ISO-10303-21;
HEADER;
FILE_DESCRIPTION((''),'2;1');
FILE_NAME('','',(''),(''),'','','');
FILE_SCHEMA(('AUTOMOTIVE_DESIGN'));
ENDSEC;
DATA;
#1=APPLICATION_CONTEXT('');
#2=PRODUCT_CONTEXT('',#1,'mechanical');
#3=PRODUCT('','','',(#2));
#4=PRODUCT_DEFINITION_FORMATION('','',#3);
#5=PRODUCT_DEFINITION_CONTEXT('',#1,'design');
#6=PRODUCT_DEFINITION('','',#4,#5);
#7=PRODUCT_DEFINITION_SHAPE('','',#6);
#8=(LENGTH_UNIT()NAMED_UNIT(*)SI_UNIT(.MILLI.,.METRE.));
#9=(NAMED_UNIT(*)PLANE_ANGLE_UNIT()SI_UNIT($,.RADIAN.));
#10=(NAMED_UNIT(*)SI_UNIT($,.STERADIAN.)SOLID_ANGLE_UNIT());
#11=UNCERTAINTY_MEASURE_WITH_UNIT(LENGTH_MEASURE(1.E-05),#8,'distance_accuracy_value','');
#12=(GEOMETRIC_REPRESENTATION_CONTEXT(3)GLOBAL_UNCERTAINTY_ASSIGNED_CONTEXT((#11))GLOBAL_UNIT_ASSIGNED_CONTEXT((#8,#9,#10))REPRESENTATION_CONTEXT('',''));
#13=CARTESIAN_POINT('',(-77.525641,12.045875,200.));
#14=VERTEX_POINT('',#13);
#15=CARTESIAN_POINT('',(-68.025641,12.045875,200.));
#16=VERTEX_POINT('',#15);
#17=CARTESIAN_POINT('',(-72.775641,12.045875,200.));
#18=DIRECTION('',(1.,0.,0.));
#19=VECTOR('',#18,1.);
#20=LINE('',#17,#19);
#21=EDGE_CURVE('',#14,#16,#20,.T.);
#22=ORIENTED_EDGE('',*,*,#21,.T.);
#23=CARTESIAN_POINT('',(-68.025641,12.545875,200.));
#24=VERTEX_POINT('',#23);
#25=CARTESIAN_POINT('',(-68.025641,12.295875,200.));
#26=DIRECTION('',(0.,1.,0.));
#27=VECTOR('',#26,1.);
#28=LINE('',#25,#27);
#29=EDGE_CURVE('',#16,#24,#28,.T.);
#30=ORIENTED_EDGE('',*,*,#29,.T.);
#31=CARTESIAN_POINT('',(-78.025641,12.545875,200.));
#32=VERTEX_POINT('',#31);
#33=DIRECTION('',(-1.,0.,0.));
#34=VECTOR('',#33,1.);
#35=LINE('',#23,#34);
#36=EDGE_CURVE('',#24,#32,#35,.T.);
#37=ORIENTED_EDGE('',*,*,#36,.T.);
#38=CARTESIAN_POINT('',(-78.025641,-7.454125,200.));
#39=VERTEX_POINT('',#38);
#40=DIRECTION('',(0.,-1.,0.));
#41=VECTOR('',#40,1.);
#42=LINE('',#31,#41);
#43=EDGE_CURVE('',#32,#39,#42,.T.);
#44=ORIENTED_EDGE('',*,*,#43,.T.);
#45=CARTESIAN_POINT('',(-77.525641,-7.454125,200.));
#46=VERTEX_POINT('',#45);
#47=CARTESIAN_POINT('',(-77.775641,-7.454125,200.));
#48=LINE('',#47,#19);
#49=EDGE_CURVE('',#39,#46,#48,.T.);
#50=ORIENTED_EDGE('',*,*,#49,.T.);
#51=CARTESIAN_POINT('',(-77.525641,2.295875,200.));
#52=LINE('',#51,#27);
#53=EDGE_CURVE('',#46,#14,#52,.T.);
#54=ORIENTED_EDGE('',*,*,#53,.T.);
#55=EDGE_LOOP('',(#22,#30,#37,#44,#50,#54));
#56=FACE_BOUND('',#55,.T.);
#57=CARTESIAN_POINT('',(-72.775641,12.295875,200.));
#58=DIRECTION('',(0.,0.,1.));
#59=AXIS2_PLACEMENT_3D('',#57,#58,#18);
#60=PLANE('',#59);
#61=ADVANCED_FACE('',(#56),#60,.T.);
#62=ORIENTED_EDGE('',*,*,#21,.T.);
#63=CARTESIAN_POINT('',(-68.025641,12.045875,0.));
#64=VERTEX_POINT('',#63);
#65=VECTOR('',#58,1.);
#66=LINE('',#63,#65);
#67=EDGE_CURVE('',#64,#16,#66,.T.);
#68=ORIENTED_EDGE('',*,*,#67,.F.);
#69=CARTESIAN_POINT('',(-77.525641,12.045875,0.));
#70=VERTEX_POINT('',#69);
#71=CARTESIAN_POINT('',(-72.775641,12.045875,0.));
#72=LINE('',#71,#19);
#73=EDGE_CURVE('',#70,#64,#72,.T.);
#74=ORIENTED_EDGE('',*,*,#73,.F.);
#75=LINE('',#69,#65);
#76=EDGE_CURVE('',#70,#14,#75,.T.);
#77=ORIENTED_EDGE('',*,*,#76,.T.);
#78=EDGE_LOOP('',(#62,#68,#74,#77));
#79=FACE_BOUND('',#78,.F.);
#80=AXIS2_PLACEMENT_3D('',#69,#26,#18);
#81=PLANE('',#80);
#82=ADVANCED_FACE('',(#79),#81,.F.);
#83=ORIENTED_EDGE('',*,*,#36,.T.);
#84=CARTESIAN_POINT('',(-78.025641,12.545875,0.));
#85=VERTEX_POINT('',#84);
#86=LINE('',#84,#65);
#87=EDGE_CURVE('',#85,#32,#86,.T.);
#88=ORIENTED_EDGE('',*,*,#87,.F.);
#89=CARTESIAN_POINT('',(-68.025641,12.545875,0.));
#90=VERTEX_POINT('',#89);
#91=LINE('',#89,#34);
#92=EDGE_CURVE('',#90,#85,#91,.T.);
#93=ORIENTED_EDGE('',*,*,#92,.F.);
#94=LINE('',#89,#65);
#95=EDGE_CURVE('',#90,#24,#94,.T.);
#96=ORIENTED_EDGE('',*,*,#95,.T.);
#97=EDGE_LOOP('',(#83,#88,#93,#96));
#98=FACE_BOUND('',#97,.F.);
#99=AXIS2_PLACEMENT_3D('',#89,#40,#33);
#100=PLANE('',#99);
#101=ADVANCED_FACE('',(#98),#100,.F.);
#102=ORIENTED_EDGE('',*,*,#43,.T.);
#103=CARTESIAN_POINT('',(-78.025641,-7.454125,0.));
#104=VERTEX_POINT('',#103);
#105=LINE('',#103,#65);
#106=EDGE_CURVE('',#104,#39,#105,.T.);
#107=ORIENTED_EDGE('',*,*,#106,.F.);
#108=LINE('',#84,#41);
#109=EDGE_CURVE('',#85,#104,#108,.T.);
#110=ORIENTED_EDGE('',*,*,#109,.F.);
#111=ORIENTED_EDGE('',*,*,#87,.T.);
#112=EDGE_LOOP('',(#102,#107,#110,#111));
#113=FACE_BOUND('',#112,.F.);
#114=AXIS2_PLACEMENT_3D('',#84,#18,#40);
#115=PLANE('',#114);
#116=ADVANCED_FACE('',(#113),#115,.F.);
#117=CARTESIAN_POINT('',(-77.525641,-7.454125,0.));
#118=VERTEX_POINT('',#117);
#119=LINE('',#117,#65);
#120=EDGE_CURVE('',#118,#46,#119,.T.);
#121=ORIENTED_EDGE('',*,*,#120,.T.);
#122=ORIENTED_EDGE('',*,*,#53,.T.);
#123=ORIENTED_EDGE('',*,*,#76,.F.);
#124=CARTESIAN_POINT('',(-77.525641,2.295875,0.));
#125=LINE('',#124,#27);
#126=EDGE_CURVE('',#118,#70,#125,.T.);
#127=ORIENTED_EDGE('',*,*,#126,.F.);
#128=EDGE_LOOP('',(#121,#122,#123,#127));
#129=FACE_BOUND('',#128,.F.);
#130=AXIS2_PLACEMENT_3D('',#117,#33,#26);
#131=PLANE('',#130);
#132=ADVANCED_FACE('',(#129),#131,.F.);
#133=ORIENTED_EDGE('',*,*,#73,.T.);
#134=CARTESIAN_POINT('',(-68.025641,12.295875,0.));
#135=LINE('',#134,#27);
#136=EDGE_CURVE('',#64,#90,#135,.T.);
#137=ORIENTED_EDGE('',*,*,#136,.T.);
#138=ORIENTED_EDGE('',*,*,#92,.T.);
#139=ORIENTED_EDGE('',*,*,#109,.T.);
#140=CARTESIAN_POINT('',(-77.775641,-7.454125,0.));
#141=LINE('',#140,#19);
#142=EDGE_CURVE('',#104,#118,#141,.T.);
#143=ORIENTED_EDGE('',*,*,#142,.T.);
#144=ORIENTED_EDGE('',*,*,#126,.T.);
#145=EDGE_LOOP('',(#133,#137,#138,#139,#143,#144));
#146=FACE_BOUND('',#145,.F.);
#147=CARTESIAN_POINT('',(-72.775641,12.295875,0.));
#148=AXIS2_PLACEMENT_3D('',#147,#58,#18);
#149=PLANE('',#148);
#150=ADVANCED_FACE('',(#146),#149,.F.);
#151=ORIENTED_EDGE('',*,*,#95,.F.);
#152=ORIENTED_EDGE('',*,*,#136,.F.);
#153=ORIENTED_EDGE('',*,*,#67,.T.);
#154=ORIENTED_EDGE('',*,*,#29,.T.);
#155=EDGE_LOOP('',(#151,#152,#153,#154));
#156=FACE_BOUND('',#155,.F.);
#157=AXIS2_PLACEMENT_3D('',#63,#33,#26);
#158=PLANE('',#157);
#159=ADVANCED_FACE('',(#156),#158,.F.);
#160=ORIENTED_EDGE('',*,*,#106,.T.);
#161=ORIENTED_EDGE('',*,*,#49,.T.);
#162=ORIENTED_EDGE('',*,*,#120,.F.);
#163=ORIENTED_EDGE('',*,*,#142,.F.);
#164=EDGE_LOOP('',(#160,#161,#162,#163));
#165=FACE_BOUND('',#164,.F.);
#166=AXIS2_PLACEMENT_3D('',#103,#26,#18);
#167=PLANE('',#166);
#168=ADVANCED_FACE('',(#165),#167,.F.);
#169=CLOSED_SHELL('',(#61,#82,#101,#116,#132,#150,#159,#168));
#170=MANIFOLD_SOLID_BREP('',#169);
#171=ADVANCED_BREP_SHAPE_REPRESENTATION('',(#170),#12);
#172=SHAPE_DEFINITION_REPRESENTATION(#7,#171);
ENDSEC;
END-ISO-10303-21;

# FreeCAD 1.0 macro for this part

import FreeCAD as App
import Part
import Sketcher
Q = App.Units.Quantity

doc = App.newDocument("Part")
body = doc.addObject("PartDesign::Body", "Body")

sketch1 = doc.addObject("Sketcher::SketchObject", "Sketch")
body.addObject(sketch1)
sketch1.AttachmentSupport = (doc.XY_Plane, [""])
sketch1.MapMode = "FlatFace"
sketch1.addGeometry(Part.LineSegment(App.Vector(-77.525641, 12.045875, 0), App.Vector(-68.025641, 12.045875, 0)), False)
sketch1.addGeometry(Part.LineSegment(App.Vector(-68.025641, 12.045875, 0), App.Vector(-68.025641, 12.545875, 0)), False)
sketch1.addGeometry(Part.LineSegment(App.Vector(-68.025641, 12.545875, 0), App.Vector(-78.025641, 12.545875, 0)), False)
sketch1.addGeometry(Part.LineSegment(App.Vector(-78.025641, 12.545875, 0), App.Vector(-78.025641, -7.454125, 0)), False)
sketch1.addGeometry(Part.LineSegment(App.Vector(-78.025641, -7.454125, 0), App.Vector(-77.525641, -7.454125, 0)), False)
sketch1.addGeometry(Part.LineSegment(App.Vector(-77.525641, -7.454125, 0), App.Vector(-77.525641, 12.045875, 0)), False)
sketch1.addConstraint(Sketcher.Constraint("Coincident", 0, 2, 1, 1))
sketch1.addConstraint(Sketcher.Constraint("Coincident", 1, 2, 2, 1))
sketch1.addConstraint(Sketcher.Constraint("Coincident", 2, 2, 3, 1))
sketch1.addConstraint(Sketcher.Constraint("Coincident", 3, 2, 4, 1))
sketch1.addConstraint(Sketcher.Constraint("Coincident", 4, 2, 5, 1))
sketch1.addConstraint(Sketcher.Constraint("Coincident", 5, 2, 0, 1))
sketch1.addConstraint(Sketcher.Constraint("Horizontal", 0))
sketch1.addConstraint(Sketcher.Constraint("Vertical", 1))
sketch1.addConstraint(Sketcher.Constraint("Horizontal", 2))
sketch1.addConstraint(Sketcher.Constraint("Vertical", 3))
sketch1.addConstraint(Sketcher.Constraint("Horizontal", 4))
sketch1.addConstraint(Sketcher.Constraint("Vertical", 5))
sketch1.addConstraint(Sketcher.Constraint("Equal", 4, 1))
sketch1.addConstraint(Sketcher.Constraint("DistanceX", 2, 2, 2, 1, Q("10 mm")))
sketch1.addConstraint(Sketcher.Constraint("DistanceY", 3, 2, 3, 1, Q("20 mm")))
sketch1.addConstraint(Sketcher.Constraint("DistanceX", 0, 1, 0, 2, Q("9.5 mm")))
sketch1.addConstraint(Sketcher.Constraint("DistanceX", 0, 2, -1, 1, Q("68.025641 mm")))
sketch1.addConstraint(Sketcher.Constraint("DistanceY", -1, 1, 0, 2, Q("12.045875 mm")))
pad1 = doc.addObject("PartDesign::Pad", "Pad")
body.addObject(pad1)
pad1.Profile = sketch1
pad1.Length = 200

doc.recompute()
